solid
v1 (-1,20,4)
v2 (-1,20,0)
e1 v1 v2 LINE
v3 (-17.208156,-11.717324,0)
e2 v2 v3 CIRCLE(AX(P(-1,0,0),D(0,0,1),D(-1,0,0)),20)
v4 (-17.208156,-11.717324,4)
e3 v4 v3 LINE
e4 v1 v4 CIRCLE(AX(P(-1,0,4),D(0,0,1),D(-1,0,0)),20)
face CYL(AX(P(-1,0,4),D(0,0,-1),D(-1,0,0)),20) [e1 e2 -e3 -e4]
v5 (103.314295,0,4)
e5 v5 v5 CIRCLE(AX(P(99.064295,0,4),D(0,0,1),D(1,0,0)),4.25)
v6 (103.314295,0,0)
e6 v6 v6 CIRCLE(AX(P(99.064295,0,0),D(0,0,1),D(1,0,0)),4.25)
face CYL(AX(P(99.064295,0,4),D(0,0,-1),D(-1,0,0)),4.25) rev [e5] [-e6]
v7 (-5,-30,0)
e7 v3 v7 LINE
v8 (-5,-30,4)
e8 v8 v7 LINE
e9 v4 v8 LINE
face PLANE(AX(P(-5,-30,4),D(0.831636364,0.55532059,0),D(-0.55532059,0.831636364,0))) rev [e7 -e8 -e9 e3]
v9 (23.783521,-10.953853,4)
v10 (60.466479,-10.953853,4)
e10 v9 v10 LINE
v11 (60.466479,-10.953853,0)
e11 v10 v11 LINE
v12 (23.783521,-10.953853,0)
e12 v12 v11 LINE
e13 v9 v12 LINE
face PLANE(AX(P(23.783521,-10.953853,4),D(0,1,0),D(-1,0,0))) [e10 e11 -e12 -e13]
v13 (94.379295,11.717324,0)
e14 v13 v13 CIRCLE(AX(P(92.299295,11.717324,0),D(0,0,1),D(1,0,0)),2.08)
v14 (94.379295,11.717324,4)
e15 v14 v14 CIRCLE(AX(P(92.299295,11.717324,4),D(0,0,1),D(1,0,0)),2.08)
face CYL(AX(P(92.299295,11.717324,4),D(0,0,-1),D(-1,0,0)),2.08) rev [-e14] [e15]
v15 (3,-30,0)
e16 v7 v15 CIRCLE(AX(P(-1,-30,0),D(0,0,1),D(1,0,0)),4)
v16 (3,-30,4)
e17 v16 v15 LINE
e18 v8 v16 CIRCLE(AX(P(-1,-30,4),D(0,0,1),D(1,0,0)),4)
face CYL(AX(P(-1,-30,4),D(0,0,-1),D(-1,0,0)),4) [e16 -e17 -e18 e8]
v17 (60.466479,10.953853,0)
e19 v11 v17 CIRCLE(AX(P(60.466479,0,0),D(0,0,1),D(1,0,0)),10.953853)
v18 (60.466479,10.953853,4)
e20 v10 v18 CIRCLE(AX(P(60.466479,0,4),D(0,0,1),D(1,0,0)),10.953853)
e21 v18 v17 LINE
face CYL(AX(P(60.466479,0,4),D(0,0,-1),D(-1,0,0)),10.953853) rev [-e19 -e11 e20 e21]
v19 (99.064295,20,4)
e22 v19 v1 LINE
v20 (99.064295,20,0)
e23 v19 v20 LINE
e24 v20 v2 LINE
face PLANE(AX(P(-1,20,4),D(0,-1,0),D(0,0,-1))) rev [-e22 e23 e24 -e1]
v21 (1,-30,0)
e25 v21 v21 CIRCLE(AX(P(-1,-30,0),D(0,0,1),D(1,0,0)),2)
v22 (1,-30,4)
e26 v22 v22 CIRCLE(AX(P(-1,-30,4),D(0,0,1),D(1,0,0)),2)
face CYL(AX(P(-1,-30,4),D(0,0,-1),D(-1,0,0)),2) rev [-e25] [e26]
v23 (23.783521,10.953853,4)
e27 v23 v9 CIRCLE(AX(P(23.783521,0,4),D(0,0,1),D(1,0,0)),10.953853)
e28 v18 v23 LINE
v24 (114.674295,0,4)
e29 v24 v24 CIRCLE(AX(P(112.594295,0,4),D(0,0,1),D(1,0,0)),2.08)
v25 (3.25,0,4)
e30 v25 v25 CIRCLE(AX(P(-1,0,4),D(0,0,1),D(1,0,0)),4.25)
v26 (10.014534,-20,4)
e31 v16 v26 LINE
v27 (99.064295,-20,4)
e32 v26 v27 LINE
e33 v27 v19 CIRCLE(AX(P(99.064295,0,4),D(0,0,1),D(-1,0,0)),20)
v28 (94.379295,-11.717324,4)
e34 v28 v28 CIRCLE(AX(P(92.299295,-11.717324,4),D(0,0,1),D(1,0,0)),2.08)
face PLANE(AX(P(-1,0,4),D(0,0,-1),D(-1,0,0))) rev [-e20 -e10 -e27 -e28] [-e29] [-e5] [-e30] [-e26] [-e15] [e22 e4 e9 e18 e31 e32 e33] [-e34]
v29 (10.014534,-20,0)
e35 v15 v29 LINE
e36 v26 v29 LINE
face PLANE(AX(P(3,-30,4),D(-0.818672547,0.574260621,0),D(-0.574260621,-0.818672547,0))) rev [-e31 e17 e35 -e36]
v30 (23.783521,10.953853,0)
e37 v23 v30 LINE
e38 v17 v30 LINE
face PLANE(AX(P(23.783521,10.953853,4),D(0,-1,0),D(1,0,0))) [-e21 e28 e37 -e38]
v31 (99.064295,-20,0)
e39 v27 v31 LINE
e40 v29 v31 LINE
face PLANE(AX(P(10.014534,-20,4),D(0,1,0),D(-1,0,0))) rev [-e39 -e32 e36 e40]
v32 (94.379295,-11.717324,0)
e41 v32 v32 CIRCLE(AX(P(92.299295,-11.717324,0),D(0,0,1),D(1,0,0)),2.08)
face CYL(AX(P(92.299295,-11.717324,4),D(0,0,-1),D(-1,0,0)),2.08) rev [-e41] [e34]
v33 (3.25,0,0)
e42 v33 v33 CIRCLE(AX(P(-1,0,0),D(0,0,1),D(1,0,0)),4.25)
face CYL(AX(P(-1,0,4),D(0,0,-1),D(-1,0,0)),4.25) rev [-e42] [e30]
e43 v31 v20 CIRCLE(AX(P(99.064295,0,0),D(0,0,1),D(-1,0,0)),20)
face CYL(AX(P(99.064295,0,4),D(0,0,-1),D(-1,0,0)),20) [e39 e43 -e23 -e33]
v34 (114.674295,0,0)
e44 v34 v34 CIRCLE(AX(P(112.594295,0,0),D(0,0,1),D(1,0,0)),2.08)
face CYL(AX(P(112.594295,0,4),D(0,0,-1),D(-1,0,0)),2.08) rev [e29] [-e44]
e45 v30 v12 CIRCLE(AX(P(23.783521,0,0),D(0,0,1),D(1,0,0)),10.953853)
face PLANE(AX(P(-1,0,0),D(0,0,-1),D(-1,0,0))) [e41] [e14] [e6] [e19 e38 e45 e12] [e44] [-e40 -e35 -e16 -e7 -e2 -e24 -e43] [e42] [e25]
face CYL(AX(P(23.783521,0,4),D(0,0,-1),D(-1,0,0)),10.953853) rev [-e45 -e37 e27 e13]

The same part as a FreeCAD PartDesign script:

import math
import FreeCAD as App
import Part
import Sketcher
from FreeCAD import Vector
Q = App.Units.Quantity

doc = App.newDocument("Part")
params = doc.addObject("Spreadsheet::Sheet", "Params")
for row, (alias, value) in enumerate([
    ("sketch1_diameter", "4 mm"),
    ("sketch1_radius", "20 mm"),
    ("sketch1_radius2", "4 mm"),
    ("sketch1_diameter2", "8.5 mm"),
    ("sketch1_diameter3", "4.16 mm"),
    ("pad1_length", "4 mm"),
], start=1):
    params.set(f"A{row}", alias)
    params.set(f"B{row}", "=" + value)
    params.setAlias(f"B{row}", alias)

body = doc.addObject("PartDesign::Body", "Body")

sketch1 = doc.addObject("Sketcher::SketchObject", "Sketch")
body.addObject(sketch1)
sketch1.AttachmentSupport = (doc.XY_Plane, [""])
sketch1.MapMode = "FlatFace"
sketch1.addGeometry(Part.LineSegment(Vector(99.1, 20, 0), Vector(-1, 20, 0)), False)
sketch1.addGeometry(Part.ArcOfCircle(Part.Circle(Vector(-1, 0, 0), Vector(0, 0, 1), 20), math.radians(90), math.radians(216)), False)
sketch1.addGeometry(Part.LineSegment(Vector(-17.2, -11.7, 0), Vector(-5, -30, 0)), False)
sketch1.addGeometry(Part.ArcOfCircle(Part.Circle(Vector(-1, -30, 0), Vector(0, 0, 1), 4), math.radians(180), math.radians(360)), False)
sketch1.addGeometry(Part.LineSegment(Vector(3, -30, 0), Vector(10, -20, 0)), False)
sketch1.addGeometry(Part.LineSegment(Vector(10, -20, 0), Vector(99.1, -20, 0)), False)
sketch1.addGeometry(Part.ArcOfCircle(Part.Circle(Vector(99.1, 0, 0), Vector(0, 0, 1), 20), math.radians(-90), math.radians(90)), False)
sketch1.addGeometry(Part.Circle(Vector(92.3, -11.7, 0), Vector(0, 0, 1), 2.1), False)
sketch1.addGeometry(Part.Circle(Vector(-1, -30, 0), Vector(0, 0, 1), 2), False)
sketch1.addGeometry(Part.Circle(Vector(112.6, 0, 0), Vector(0, 0, 1), 2.1), False)
sketch1.addGeometry(Part.Circle(Vector(99.1, 0, 0), Vector(0, 0, 1), 4.2), False)
sketch1.addGeometry(Part.Circle(Vector(92.3, 11.7, 0), Vector(0, 0, 1), 2.1), False)
sketch1.addGeometry(Part.LineSegment(Vector(23.8, 11, 0), Vector(60.5, 11, 0)), False)
sketch1.addGeometry(Part.ArcOfCircle(Part.Circle(Vector(60.5, 0, 0), Vector(0, 0, 1), 11), math.radians(-90), math.radians(90)), False)
sketch1.addGeometry(Part.LineSegment(Vector(60.5, -11, 0), Vector(23.8, -11, 0)), False)
sketch1.addGeometry(Part.ArcOfCircle(Part.Circle(Vector(23.8, 0, 0), Vector(0, 0, 1), 11), math.radians(90), math.radians(270)), False)
sketch1.addGeometry(Part.Circle(Vector(-1, 0, 0), Vector(0, 0, 1), 4.2), False)
sketch1.addConstraint(Sketcher.Constraint("Tangent", 0, 2, 1, 1))
sketch1.addConstraint(Sketcher.Constraint("Coincident", 1, 2, 2, 1))
sketch1.addConstraint(Sketcher.Constraint("Coincident", 2, 2, 3, 1))
sketch1.addConstraint(Sketcher.Constraint("Coincident", 3, 2, 4, 1))
sketch1.addConstraint(Sketcher.Constraint("Coincident", 4, 2, 5, 1))
sketch1.addConstraint(Sketcher.Constraint("Tangent", 5, 2, 6, 1))
sketch1.addConstraint(Sketcher.Constraint("Tangent", 6, 2, 0, 1))
sketch1.addConstraint(Sketcher.Constraint("Tangent", 12, 2, 13, 2))
sketch1.addConstraint(Sketcher.Constraint("Tangent", 13, 1, 14, 1))
sketch1.addConstraint(Sketcher.Constraint("Tangent", 14, 2, 15, 2))
sketch1.addConstraint(Sketcher.Constraint("Tangent", 15, 1, 12, 1))
sketch1.addConstraint(Sketcher.Constraint("Horizontal", 0))
sketch1.addConstraint(Sketcher.Constraint("Horizontal", 5))
sketch1.addConstraint(Sketcher.Constraint("Horizontal", 12))
sketch1.addConstraint(Sketcher.Constraint("Horizontal", 14))
sketch1.addConstraint(Sketcher.Constraint("Coincident", 8, 3, 3, 3))
sketch1.addConstraint(Sketcher.Constraint("Coincident", 10, 3, 6, 3))
sketch1.addConstraint(Sketcher.Constraint("Coincident", 16, 3, 1, 3))
sketch1.addConstraint(Sketcher.Constraint("Equal", 1, 6))
sketch1.addConstraint(Sketcher.Constraint("Equal", 7, 9))
sketch1.addConstraint(Sketcher.Constraint("Equal", 9, 11))
sketch1.addConstraint(Sketcher.Constraint("Equal", 10, 16))
sketch1.addConstraint(Sketcher.Constraint("Symmetric", 7, 3, 11, 3, -1))
sketch1.addConstraint(Sketcher.Constraint("PointOnObject", 1, 3, -1))
sketch1.addConstraint(Sketcher.Constraint("PointOnObject", 9, 3, -1))
sketch1.addConstraint(Sketcher.Constraint("PointOnObject", 13, 3, -1))
sketch1.addConstraint(Sketcher.Constraint("Horizontal", 7, 3, 1, 2))
sketch1.addConstraint(Sketcher.Constraint("Horizontal", 8, 3, 2, 2))
sketch1.addConstraint(Sketcher.Constraint("Horizontal", 2, 2, 3, 2))
sketch1.addConstraint(Sketcher.Constraint("Vertical", 1, 3, 3, 3))
sketch1.addConstraint(Sketcher.Constraint("Diameter", 8, Q("4 mm")))
sketch1.addConstraint(Sketcher.Constraint("Radius", 1, Q("20 mm")))
sketch1.addConstraint(Sketcher.Constraint("Radius", 3, Q("4 mm")))
sketch1.addConstraint(Sketcher.Constraint("Diameter", 10, Q("8.5 mm")))
sketch1.addConstraint(Sketcher.Constraint("Diameter", 7, Q("4.16 mm")))
sketch1.addConstraint(Sketcher.Constraint("DistanceX", 1, 3, -1, 1, Q("1 mm")))
sketch1.addConstraint(Sketcher.Constraint("DistanceY", 3, 3, -1, 1, Q("30 mm")))
sketch1.addConstraint(Sketcher.Constraint("DistanceX", 6, 3, 9, 3, Q("13.53 mm")))
sketch1.addConstraint(Sketcher.Constraint("Radius", 13, Q("10.953853 mm")))
sketch1.addConstraint(Sketcher.Constraint("DistanceX", 7, 3, 6, 3, Q("6.765 mm")))
sketch1.addConstraint(Sketcher.Constraint("DistanceX", 5, 1, 5, 2, Q("89.049761 mm")))
sketch1.addConstraint(Sketcher.Constraint("Distance", 2, Q("21.983979 mm")))
sketch1.addConstraint(Sketcher.Constraint("DistanceX", 0, 2, 0, 1, Q("100.064295 mm")))
sketch1.addConstraint(Sketcher.Constraint("DistanceX", 12, 1, 12, 2, Q("36.682957 mm")))
sketch1.addConstraint(Sketcher.Constraint("DistanceX", -1, 1, 13, 3, Q("60.466479 mm")))
sketch1.setExpression("Constraints[30]", "Params.sketch1_diameter")
sketch1.setExpression("Constraints[31]", "Params.sketch1_radius")
sketch1.setExpression("Constraints[32]", "Params.sketch1_radius2")
sketch1.setExpression("Constraints[33]", "Params.sketch1_diameter2")
sketch1.setExpression("Constraints[34]", "Params.sketch1_diameter3")
pad1 = doc.addObject("PartDesign::Pad", "Pad")
body.addObject(pad1)
pad1.Profile = sketch1
pad1.setExpression("Length", "Params.pad1_length")

doc.recompute()
